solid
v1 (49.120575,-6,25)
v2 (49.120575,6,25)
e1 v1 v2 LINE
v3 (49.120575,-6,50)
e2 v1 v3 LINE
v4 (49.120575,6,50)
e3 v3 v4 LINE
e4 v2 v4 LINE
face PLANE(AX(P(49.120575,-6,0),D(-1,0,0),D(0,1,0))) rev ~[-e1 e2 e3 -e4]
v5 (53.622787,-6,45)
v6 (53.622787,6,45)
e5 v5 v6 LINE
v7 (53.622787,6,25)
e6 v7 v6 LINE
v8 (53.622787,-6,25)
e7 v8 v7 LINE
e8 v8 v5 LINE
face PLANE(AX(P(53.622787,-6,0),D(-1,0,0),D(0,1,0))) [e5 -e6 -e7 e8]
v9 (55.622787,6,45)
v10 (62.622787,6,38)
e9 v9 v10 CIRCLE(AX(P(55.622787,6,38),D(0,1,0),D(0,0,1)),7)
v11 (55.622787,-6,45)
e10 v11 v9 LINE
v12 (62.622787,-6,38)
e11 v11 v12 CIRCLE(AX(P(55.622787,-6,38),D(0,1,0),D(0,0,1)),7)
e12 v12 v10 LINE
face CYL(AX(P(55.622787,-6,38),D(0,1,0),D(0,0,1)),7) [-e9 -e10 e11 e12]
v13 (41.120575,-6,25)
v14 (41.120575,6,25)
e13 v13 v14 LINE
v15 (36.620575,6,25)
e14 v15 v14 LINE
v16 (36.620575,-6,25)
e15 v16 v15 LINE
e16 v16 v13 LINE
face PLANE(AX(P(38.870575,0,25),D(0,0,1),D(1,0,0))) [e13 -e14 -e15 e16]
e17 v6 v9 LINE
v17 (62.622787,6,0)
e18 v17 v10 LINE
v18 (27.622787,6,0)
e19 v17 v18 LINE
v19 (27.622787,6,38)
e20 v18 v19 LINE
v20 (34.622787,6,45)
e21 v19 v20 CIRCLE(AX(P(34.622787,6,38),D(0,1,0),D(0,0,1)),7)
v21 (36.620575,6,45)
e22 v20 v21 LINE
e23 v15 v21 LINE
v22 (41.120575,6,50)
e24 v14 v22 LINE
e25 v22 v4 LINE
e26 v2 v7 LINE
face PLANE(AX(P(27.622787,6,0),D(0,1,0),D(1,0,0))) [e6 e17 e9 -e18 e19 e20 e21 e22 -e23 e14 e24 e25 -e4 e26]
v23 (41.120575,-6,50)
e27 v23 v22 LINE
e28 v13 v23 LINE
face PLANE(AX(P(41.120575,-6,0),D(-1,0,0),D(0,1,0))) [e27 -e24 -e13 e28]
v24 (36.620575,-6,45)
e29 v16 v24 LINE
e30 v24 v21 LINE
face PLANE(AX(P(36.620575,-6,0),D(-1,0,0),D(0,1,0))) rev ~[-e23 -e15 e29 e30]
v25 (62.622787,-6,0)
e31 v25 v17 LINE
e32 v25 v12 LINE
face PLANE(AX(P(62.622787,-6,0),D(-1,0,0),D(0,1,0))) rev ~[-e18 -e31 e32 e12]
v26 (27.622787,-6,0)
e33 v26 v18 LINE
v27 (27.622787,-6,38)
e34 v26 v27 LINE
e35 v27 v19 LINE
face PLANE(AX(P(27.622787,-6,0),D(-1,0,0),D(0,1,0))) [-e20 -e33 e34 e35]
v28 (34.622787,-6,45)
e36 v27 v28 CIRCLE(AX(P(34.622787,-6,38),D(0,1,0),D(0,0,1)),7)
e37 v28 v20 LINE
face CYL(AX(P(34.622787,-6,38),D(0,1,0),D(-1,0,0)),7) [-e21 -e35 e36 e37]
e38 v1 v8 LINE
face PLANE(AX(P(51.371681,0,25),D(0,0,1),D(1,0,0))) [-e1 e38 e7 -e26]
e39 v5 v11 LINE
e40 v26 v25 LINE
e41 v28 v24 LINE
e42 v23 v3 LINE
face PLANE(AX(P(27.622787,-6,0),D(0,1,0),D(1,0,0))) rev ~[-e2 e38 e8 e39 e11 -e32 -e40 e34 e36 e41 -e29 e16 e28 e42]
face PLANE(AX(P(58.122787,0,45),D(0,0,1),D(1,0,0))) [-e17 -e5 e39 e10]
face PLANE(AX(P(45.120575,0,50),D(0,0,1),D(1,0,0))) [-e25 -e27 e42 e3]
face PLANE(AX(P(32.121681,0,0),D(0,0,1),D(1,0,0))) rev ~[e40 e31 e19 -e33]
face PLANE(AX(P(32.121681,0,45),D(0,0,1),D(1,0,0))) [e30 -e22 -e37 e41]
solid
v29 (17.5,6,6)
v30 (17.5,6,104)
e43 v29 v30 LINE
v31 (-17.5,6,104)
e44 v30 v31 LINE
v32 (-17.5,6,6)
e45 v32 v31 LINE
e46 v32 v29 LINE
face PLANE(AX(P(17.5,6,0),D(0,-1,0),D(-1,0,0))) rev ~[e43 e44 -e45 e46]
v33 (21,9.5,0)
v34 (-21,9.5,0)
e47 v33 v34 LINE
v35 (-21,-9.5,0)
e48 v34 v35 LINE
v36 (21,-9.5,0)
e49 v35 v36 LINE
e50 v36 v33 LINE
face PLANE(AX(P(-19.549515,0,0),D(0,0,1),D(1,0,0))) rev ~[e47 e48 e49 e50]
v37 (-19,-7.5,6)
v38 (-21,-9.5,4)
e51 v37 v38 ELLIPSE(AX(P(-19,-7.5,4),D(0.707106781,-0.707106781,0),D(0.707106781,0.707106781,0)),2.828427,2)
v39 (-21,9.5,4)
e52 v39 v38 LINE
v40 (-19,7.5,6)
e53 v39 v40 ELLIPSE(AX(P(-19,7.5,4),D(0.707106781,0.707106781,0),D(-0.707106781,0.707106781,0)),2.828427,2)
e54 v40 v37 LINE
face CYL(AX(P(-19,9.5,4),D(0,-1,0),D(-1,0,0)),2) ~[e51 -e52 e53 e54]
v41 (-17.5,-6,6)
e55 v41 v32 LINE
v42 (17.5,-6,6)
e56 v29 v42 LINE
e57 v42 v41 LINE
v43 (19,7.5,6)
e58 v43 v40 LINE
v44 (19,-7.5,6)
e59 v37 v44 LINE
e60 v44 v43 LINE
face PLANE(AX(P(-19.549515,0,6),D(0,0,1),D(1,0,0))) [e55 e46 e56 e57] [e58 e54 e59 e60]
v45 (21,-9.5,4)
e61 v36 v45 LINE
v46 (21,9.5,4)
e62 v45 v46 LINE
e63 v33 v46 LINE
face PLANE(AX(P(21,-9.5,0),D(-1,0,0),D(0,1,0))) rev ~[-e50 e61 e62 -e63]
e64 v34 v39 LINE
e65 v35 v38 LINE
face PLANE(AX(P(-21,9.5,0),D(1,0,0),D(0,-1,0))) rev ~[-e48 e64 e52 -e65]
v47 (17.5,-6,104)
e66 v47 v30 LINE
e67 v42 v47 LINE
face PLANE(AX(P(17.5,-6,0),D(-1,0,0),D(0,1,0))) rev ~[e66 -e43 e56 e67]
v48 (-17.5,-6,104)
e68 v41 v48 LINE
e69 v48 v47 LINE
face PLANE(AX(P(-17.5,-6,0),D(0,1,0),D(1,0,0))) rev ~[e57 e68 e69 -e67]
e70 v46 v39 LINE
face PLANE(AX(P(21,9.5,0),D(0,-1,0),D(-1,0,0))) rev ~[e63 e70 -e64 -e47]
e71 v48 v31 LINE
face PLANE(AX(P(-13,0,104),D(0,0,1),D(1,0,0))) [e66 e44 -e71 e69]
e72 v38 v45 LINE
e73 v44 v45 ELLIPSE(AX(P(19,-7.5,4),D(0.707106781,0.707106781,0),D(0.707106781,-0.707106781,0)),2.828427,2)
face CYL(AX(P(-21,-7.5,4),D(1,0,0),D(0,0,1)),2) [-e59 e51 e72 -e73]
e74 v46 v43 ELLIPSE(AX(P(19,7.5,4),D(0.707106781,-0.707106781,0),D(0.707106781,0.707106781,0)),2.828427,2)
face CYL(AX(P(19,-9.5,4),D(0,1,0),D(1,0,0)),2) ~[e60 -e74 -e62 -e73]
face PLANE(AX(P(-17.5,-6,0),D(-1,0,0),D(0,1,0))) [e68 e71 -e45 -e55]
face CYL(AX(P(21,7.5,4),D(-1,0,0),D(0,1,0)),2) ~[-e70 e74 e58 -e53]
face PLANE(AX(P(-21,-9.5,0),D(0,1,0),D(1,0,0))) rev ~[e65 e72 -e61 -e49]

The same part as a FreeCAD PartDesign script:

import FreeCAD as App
import Part
import Sketcher

V = App.Vector


def edges_at(feature, points):
    """Names of the edges that pass closest to the given points."""
    edges = feature.Shape.Edges
    near = lambda p: min(range(len(edges)), key=lambda i: edges[i].distToShape(Part.Vertex(*p))[0])
    return sorted({f"Edge{near(p) + 1}" for p in points})

doc = App.newDocument("Part")
body = doc.addObject("PartDesign::Body", "Body")

sketch1 = body.newObject("Sketcher::SketchObject", "Sketch")
sketch1.AttachmentSupport = (doc.getObject("XY_Plane"), [""])
sketch1.MapMode = "FlatFace"
sketch1.addGeometry([
    Part.LineSegment(V(-18, 6, 0), V(-18, -6, 0)),
    Part.LineSegment(V(-18, -6, 0), V(18, -6, 0)),
    Part.LineSegment(V(18, -6, 0), V(18, 6, 0)),
    Part.LineSegment(V(18, 6, 0), V(-18, 6, 0)),
], False)
sketch1.addConstraint([
    Sketcher.Constraint("Coincident", 0, 2, 1, 1),
    Sketcher.Constraint("Coincident", 1, 2, 2, 1),
    Sketcher.Constraint("Coincident", 2, 2, 3, 1),
    Sketcher.Constraint("Coincident", 3, 2, 0, 1),
    Sketcher.Constraint("Vertical", 0),
    Sketcher.Constraint("Horizontal", 1),
    Sketcher.Constraint("Vertical", 2),
    Sketcher.Constraint("Horizontal", 3),
    Sketcher.Constraint("Symmetric", 0, 2, 2, 2, -1, 1),
    Sketcher.Constraint("DistanceX", 1, 1, 1, 2, 35.0),
    Sketcher.Constraint("DistanceY", 0, 2, 0, 1, 12.0),
])
pad1 = body.newObject("PartDesign::Pad", "Pad")
pad1.Profile = sketch1
pad1.Length = 104

sketch2 = body.newObject("Sketcher::SketchObject", "Sketch001")
sketch2.AttachmentSupport = (doc.getObject("XY_Plane"), [""])
sketch2.MapMode = "FlatFace"
sketch2.addGeometry([
    Part.LineSegment(V(21, 10, 0), V(-21, 10, 0)),
    Part.LineSegment(V(-21, 10, 0), V(-21, -10, 0)),
    Part.LineSegment(V(-21, -10, 0), V(21, -10, 0)),
    Part.LineSegment(V(21, -10, 0), V(21, 10, 0)),
    Part.LineSegment(V(-18, -6, 0), V(-18, 6, 0)),
    Part.LineSegment(V(-18, 6, 0), V(18, 6, 0)),
    Part.LineSegment(V(18, 6, 0), V(18, -6, 0)),
    Part.LineSegment(V(18, -6, 0), V(-18, -6, 0)),
], False)
sketch2.addConstraint([
    Sketcher.Constraint("Coincident", 0, 2, 1, 1),
    Sketcher.Constraint("Coincident", 1, 2, 2, 1),
    Sketcher.Constraint("Coincident", 2, 2, 3, 1),
    Sketcher.Constraint("Coincident", 3, 2, 0, 1),
    Sketcher.Constraint("Coincident", 4, 2, 5, 1),
    Sketcher.Constraint("Coincident", 5, 2, 6, 1),
    Sketcher.Constraint("Coincident", 6, 2, 7, 1),
    Sketcher.Constraint("Coincident", 7, 2, 4, 1),
    Sketcher.Constraint("Horizontal", 0),
    Sketcher.Constraint("Vertical", 1),
    Sketcher.Constraint("Horizontal", 2),
    Sketcher.Constraint("Vertical", 3),
    Sketcher.Constraint("Vertical", 4),
    Sketcher.Constraint("Horizontal", 5),
    Sketcher.Constraint("Vertical", 6),
    Sketcher.Constraint("Horizontal", 7),
    Sketcher.Constraint("Symmetric", 0, 2, 2, 2, -1, 1),
    Sketcher.Constraint("Symmetric", 4, 2, 6, 2, -1, 1),
    Sketcher.Constraint("DistanceX", 0, 2, 0, 1, 42.0),
    Sketcher.Constraint("DistanceX", 5, 1, 5, 2, 35.0),
    Sketcher.Constraint("DistanceY", 1, 2, 1, 1, 19.0),
    Sketcher.Constraint("DistanceY", 4, 1, 4, 2, 12.0),
])
pad2 = body.newObject("PartDesign::Pad", "Pad001")
pad2.Profile = sketch2
pad2.Length = 6
doc.recompute()

fillet = body.newObject("PartDesign::Fillet", "Fillet")
fillet.Base = (pad2, edges_at(pad2, [
    (0, -9.5, 6),
    (21, 0, 6),
    (0, 9.5, 6),
    (-21, 0, 6),
]))
fillet.Radius = 2
body2 = doc.addObject("PartDesign::Body", "Body001")

sketch3 = body2.newObject("Sketcher::SketchObject", "Sketch002")
sketch3.AttachmentSupport = (doc.getObject("XY_Plane001"), [""])
sketch3.MapMode = "FlatFace"
sketch3.addGeometry([
    Part.LineSegment(V(41, 6, 0), V(41, -6, 0)),
    Part.LineSegment(V(41, -6, 0), V(49, -6, 0)),
    Part.LineSegment(V(49, -6, 0), V(49, 6, 0)),
    Part.LineSegment(V(49, 6, 0), V(41, 6, 0)),
], False)
sketch3.addConstraint([
    Sketcher.Constraint("Coincident", 0, 2, 1, 1),
    Sketcher.Constraint("Coincident", 1, 2, 2, 1),
    Sketcher.Constraint("Coincident", 2, 2, 3, 1),
    Sketcher.Constraint("Coincident", 3, 2, 0, 1),
    Sketcher.Constraint("Vertical", 0),
    Sketcher.Constraint("Horizontal", 1),
    Sketcher.Constraint("Vertical", 2),
    Sketcher.Constraint("Horizontal", 3),
    Sketcher.Constraint("DistanceX", 1, 1, 1, 2, 8.0),
    Sketcher.Constraint("DistanceY", 0, 2, 0, 1, 12.0),
    Sketcher.Constraint("DistanceY", 0, 2, -1, 1, 6.0),
    Sketcher.Constraint("DistanceX", -1, 1, 0, 2, 41.120575),
])
pad3 = body2.newObject("PartDesign::Pad", "Pad002")
pad3.Profile = sketch3
pad3.Length = 50

sketch4 = body2.newObject("Sketcher::SketchObject", "Sketch003")
sketch4.AttachmentSupport = (doc.getObject("XY_Plane001"), [""])
sketch4.MapMode = "FlatFace"
sketch4.addGeometry([
    Part.LineSegment(V(36.6, 6, 0), V(36.6, -6, 0)),
    Part.LineSegment(V(36.6, -6, 0), V(41.1, -6, 0)),
    Part.LineSegment(V(41.1, -6, 0), V(41.1, 6, 0)),
    Part.LineSegment(V(41.1, 6, 0), V(36.6, 6, 0)),
    Part.LineSegment(V(49.1, 6, 0), V(49.1, -6, 0)),
    Part.LineSegment(V(49.1, -6, 0), V(53.6, -6, 0)),
    Part.LineSegment(V(53.6, -6, 0), V(53.6, 6, 0)),
    Part.LineSegment(V(53.6, 6, 0), V(49.1, 6, 0)),
], False)
sketch4.addConstraint([
    Sketcher.Constraint("Coincident", 0, 2, 1, 1),
    Sketcher.Constraint("Coincident", 1, 2, 2, 1),
    Sketcher.Constraint("Coincident", 2, 2, 3, 1),
    Sketcher.Constraint("Coincident", 3, 2, 0, 1),
    Sketcher.Constraint("Coincident", 4, 2, 5, 1),
    Sketcher.Constraint("Coincident", 5, 2, 6, 1),
    Sketcher.Constraint("Coincident", 6, 2, 7, 1),
    Sketcher.Constraint("Coincident", 7, 2, 4, 1),
    Sketcher.Constraint("Vertical", 0),
    Sketcher.Constraint("Horizontal", 1),
    Sketcher.Constraint("Vertical", 2),
    Sketcher.Constraint("Horizontal", 3),
    Sketcher.Constraint("Vertical", 4),
    Sketcher.Constraint("Horizontal", 5),
    Sketcher.Constraint("Vertical", 6),
    Sketcher.Constraint("Horizontal", 7),
    Sketcher.Constraint("Horizontal", 1, 2, 4, 2),
    Sketcher.Constraint("Horizontal", 3, 2, 6, 2),
    Sketcher.Constraint("DistanceY", 0, 2, 0, 1, 12.0),
    Sketcher.Constraint("DistanceX", 1, 1, 1, 2, 4.5),
    Sketcher.Constraint("DistanceY", 0, 2, -1, 1, 6.0),
    Sketcher.Constraint("DistanceX", 1, 2, 4, 2, 8.0),
    Sketcher.Constraint("DistanceX", 5, 1, 5, 2, 4.502212),
    Sketcher.Constraint("DistanceX", -1, 1, 0, 2, 36.620575),
])
pad4 = body2.newObject("PartDesign::Pad", "Pad003")
pad4.Profile = sketch4
pad4.Length = 25

sketch5 = body2.newObject("Sketcher::SketchObject", "Sketch004")
sketch5.AttachmentSupport = (doc.getObject("XY_Plane001"), [""])
sketch5.MapMode = "FlatFace"
sketch5.addGeometry([
    Part.LineSegment(V(28, 6, 0), V(28, -6, 0)),
    Part.LineSegment(V(28, -6, 0), V(37, -6, 0)),
    Part.LineSegment(V(37, -6, 0), V(37, 6, 0)),
    Part.LineSegment(V(37, 6, 0), V(28, 6, 0)),
    Part.LineSegment(V(54, 6, 0), V(54, -6, 0)),
    Part.LineSegment(V(54, -6, 0), V(63, -6, 0)),
    Part.LineSegment(V(63, -6, 0), V(63, 6, 0)),
    Part.LineSegment(V(63, 6, 0), V(54, 6, 0)),
], False)
sketch5.addConstraint([
    Sketcher.Constraint("Coincident", 0, 2, 1, 1),
    Sketcher.Constraint("Coincident", 1, 2, 2, 1),
    Sketcher.Constraint("Coincident", 2, 2, 3, 1),
    Sketcher.Constraint("Coincident", 3, 2, 0, 1),
    Sketcher.Constraint("Coincident", 4, 2, 5, 1),
    Sketcher.Constraint("Coincident", 5, 2, 6, 1),
    Sketcher.Constraint("Coincident", 6, 2, 7, 1),
    Sketcher.Constraint("Coincident", 7, 2, 4, 1),
    Sketcher.Constraint("Vertical", 0),
    Sketcher.Constraint("Horizontal", 1),
    Sketcher.Constraint("Vertical", 2),
    Sketcher.Constraint("Horizontal", 3),
    Sketcher.Constraint("Vertical", 4),
    Sketcher.Constraint("Horizontal", 5),
    Sketcher.Constraint("Vertical", 6),
    Sketcher.Constraint("Horizontal", 7),
    Sketcher.Constraint("Horizontal", 1, 2, 4, 2),
    Sketcher.Constraint("Horizontal", 3, 2, 6, 2),
    Sketcher.Constraint("DistanceX", 5, 1, 5, 2, 9.0),
    Sketcher.Constraint("DistanceY", 0, 2, 0, 1, 12.0),
    Sketcher.Constraint("DistanceY", 0, 2, -1, 1, 6.0),
    Sketcher.Constraint("DistanceX", 0, 2, 4, 2, 26.0),
    Sketcher.Constraint("DistanceX", 1, 1, 1, 2, 8.997788),
    Sketcher.Constraint("DistanceX", -1, 1, 0, 2, 27.622787),
])
pad5 = body2.newObject("PartDesign::Pad", "Pad004")
pad5.Profile = sketch5
pad5.Length = 45
doc.recompute()

fillet2 = body2.newObject("PartDesign::Fillet", "Fillet001")
fillet2.Base = (pad5, edges_at(pad5, [(27.623, 0, 45), (62.623, 0, 45)]))
fillet2.Radius = 7

doc.recompute()
